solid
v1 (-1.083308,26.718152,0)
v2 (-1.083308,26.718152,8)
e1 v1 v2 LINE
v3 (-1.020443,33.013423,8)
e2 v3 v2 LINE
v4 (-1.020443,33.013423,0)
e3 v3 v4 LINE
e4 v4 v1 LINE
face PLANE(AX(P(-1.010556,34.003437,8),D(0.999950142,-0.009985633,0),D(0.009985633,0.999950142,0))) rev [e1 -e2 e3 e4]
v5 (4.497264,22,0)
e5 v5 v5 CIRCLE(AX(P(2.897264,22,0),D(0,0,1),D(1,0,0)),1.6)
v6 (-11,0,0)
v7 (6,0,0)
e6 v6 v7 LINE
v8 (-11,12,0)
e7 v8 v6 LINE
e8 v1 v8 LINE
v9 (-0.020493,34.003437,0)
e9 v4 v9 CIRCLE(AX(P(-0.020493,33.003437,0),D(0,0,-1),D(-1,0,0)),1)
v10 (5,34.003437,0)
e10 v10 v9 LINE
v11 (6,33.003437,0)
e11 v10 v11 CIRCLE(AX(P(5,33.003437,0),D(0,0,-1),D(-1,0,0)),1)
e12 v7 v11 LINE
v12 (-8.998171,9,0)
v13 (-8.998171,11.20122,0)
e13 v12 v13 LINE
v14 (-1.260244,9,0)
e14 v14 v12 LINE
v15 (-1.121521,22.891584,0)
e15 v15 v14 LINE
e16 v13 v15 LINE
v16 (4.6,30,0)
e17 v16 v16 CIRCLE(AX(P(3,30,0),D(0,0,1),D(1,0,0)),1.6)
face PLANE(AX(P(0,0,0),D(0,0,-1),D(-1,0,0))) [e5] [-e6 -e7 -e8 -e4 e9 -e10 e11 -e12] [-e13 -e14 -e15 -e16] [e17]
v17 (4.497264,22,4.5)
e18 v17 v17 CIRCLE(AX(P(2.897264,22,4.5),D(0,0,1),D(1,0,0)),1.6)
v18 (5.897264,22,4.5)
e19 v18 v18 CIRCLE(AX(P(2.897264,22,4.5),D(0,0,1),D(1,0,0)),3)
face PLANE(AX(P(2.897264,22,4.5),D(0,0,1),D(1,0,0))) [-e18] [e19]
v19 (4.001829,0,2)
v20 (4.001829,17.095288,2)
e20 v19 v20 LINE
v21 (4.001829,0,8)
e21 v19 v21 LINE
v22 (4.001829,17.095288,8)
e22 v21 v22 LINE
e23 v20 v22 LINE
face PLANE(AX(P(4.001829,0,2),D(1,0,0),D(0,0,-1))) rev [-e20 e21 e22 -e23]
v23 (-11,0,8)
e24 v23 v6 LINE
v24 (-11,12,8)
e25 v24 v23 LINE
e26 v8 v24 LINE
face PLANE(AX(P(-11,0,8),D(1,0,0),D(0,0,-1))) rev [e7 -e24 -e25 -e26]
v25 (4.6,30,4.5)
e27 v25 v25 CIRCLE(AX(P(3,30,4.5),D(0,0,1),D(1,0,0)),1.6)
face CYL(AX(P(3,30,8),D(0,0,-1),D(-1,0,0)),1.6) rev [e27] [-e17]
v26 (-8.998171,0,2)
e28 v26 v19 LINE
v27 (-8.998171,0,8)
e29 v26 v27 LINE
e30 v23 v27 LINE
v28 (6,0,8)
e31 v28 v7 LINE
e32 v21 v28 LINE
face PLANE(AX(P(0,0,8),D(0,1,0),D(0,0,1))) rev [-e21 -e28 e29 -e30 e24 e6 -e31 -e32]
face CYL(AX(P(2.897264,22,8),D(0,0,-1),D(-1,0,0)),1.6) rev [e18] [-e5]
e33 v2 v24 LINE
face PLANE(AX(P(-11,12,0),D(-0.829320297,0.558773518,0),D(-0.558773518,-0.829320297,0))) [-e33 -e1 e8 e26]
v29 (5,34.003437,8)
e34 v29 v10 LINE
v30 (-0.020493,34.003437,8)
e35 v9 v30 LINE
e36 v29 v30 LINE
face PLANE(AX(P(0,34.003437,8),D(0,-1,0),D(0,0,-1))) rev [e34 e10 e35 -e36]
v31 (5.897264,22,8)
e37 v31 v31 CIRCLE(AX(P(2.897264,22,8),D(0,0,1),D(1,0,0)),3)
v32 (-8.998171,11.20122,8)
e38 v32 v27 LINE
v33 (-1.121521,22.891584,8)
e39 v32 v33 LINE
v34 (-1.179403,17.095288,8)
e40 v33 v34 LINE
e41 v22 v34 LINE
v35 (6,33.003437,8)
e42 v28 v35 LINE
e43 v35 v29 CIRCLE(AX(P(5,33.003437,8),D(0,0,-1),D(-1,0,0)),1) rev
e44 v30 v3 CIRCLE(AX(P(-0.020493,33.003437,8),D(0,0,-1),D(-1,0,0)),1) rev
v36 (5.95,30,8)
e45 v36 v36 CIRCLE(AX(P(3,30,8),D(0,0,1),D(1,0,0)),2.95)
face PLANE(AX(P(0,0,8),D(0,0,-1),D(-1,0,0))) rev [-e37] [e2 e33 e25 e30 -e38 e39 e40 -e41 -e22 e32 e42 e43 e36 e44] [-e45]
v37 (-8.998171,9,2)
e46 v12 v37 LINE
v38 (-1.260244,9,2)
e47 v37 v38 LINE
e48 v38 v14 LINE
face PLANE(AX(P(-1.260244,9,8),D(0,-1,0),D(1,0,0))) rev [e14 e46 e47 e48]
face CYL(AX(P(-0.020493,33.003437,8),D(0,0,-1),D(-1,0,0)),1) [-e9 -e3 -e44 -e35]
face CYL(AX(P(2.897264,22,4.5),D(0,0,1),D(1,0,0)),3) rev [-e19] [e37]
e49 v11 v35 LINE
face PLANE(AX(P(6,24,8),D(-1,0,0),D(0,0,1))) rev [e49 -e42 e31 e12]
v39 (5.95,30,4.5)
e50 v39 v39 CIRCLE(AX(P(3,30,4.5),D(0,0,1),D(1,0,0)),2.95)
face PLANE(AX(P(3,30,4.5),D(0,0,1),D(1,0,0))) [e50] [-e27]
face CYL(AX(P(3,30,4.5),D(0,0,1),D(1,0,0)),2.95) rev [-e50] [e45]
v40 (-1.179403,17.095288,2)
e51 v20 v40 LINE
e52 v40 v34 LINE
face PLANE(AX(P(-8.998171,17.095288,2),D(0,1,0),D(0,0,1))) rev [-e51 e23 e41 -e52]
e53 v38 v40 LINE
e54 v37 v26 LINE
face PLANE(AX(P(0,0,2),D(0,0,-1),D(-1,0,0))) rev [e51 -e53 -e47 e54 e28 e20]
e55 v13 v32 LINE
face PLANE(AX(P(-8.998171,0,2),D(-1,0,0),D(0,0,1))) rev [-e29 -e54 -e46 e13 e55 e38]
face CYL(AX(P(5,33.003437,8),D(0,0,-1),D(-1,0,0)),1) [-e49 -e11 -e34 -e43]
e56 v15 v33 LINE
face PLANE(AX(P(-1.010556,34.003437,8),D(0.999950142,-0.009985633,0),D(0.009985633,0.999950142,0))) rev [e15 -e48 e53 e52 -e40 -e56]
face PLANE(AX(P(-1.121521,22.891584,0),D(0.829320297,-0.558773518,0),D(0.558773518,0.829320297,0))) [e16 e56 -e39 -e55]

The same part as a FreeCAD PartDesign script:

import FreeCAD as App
import Part
import Sketcher
from FreeCAD import Vector


def edges_at(feature, points):
    """Names of the edges that pass closest to the given points."""
    edges = feature.Shape.Edges
    near = lambda p: min(range(len(edges)), key=lambda i: edges[i].distToShape(Part.Vertex(*p))[0])
    return sorted({f"Edge{near(p) + 1}" for p in points})

doc = App.newDocument("Part")
body = doc.addObject("PartDesign::Body", "Body")

# Sketch on XY plane
sketch1 = doc.addObject("Sketcher::SketchObject", "Sketch")
body.addObject(sketch1)
sketch1.AttachmentSupport = (doc.XY_Plane, [""])
sketch1.MapMode = "FlatFace"
sketch1.addGeometry(Part.LineSegment(Vector(6, 0, 0), Vector(6, 34, 0)), False)
sketch1.addGeometry(Part.LineSegment(Vector(6, 34, 0), Vector(-1, 34, 0)), False)
sketch1.addGeometry(Part.LineSegment(Vector(-1, 34, 0), Vector(-1.3, 9, 0)), False)
sketch1.addGeometry(Part.LineSegment(Vector(-1.3, 9, 0), Vector(-11, 9, 0)), False)
sketch1.addGeometry(Part.LineSegment(Vector(-11, 9, 0), Vector(-11, 0, 0)), False)
sketch1.addGeometry(Part.LineSegment(Vector(-11, 0, 0), Vector(6, 0, 0)), False)
sketch1.addGeometry(Part.Circle(Vector(2.9, 22, 0), Vector(0, 0, 1), 1.6), False)
sketch1.addGeometry(Part.Circle(Vector(3, 30, 0), Vector(0, 0, 1), 1.6), False)
sketch1.addConstraint(Sketcher.Constraint("Coincident", 0, 2, 1, 1))
sketch1.addConstraint(Sketcher.Constraint("Coincident", 1, 2, 2, 1))
sketch1.addConstraint(Sketcher.Constraint("Coincident", 2, 2, 3, 1))
sketch1.addConstraint(Sketcher.Constraint("Coincident", 3, 2, 4, 1))
sketch1.addConstraint(Sketcher.Constraint("Coincident", 4, 2, 5, 1))
sketch1.addConstraint(Sketcher.Constraint("Coincident", 5, 2, 0, 1))
sketch1.addConstraint(Sketcher.Constraint("Vertical", 0))
sketch1.addConstraint(Sketcher.Constraint("Horizontal", 1))
sketch1.addConstraint(Sketcher.Constraint("Horizontal", 3))
sketch1.addConstraint(Sketcher.Constraint("Vertical", 4))
sketch1.addConstraint(Sketcher.Constraint("Horizontal", 5))
sketch1.addConstraint(Sketcher.Constraint("Equal", 6, 7))
sketch1.addConstraint(Sketcher.Constraint("PointOnObject", 4, 2, -1))
sketch1.addConstraint(Sketcher.Constraint("Diameter", 6, 3.2))
sketch1.addConstraint(Sketcher.Constraint("DistanceX", 5, 1, 5, 2, 17.0))
sketch1.addConstraint(Sketcher.Constraint("DistanceY", 4, 2, 4, 1, 9.0))
sketch1.addConstraint(Sketcher.Constraint("DistanceY", -1, 1, 6, 3, 22.0))
sketch1.addConstraint(Sketcher.Constraint("DistanceX", -1, 1, 7, 3, 3.0))
sketch1.addConstraint(Sketcher.Constraint("DistanceY", -1, 1, 7, 3, 30.0))
sketch1.addConstraint(Sketcher.Constraint("DistanceX", -1, 1, 0, 2, 6.0))
sketch1.addConstraint(Sketcher.Constraint("DistanceX", 1, 2, 1, 1, 7.010556))
sketch1.addConstraint(Sketcher.Constraint("DistanceX", 3, 2, 3, 1, 9.739756))
sketch1.addConstraint(Sketcher.Constraint("DistanceY", 0, 1, 0, 2, 34.003437))
sketch1.addConstraint(Sketcher.Constraint("DistanceX", 1, 2, 6, 3, 3.90782))
pad1 = doc.addObject("PartDesign::Pad", "Pad")
body.addObject(pad1)
pad1.Profile = sketch1
pad1.Length = 8

# Sketch on XY plane
sketch2 = doc.addObject("Sketcher::SketchObject", "Sketch001")
body.addObject(sketch2)
sketch2.AttachmentSupport = (doc.XY_Plane, [""])
sketch2.MapMode = "FlatFace"
sketch2.AttachmentOffset = App.Placement(Vector(0, 0, 8), App.Rotation())
sketch2.addGeometry(Part.LineSegment(Vector(-9, 17, 0), Vector(-9, 0, 0)), False)
sketch2.addGeometry(Part.LineSegment(Vector(-9, 0, 0), Vector(4, 0, 0)), False)
sketch2.addGeometry(Part.LineSegment(Vector(4, 0, 0), Vector(4, 17, 0)), False)
sketch2.addGeometry(Part.LineSegment(Vector(4, 17, 0), Vector(-9, 17, 0)), False)
sketch2.addConstraint(Sketcher.Constraint("Coincident", 0, 2, 1, 1))
sketch2.addConstraint(Sketcher.Constraint("Coincident", 1, 2, 2, 1))
sketch2.addConstraint(Sketcher.Constraint("Coincident", 2, 2, 3, 1))
sketch2.addConstraint(Sketcher.Constraint("Coincident", 3, 2, 0, 1))
sketch2.addConstraint(Sketcher.Constraint("Vertical", 0))
sketch2.addConstraint(Sketcher.Constraint("Horizontal", 1))
sketch2.addConstraint(Sketcher.Constraint("Vertical", 2))
sketch2.addConstraint(Sketcher.Constraint("Horizontal", 3))
sketch2.addConstraint(Sketcher.Constraint("PointOnObject", 0, 2, -1))
sketch2.addConstraint(Sketcher.Constraint("DistanceX", 1, 1, 1, 2, 13.0))
sketch2.addConstraint(Sketcher.Constraint("DistanceY", 0, 2, 0, 1, 17.095288))
sketch2.addConstraint(Sketcher.Constraint("DistanceX", 0, 2, -1, 1, 8.998171))
pocket1 = doc.addObject("PartDesign::Pocket", "Pocket")
body.addObject(pocket1)
pocket1.Profile = sketch2
pocket1.Length = 6

# Sketch on XY plane
sketch3 = doc.addObject("Sketcher::SketchObject", "Sketch002")
body.addObject(sketch3)
sketch3.AttachmentSupport = (doc.XY_Plane, [""])
sketch3.MapMode = "FlatFace"
sketch3.AttachmentOffset = App.Placement(Vector(0, 0, 8), App.Rotation())
sketch3.addGeometry(Part.LineSegment(Vector(-1.1, 26.7, 0), Vector(-11, 12, 0)), False)
sketch3.addGeometry(Part.LineSegment(Vector(-11, 12, 0), Vector(-11, 9, 0)), False)
sketch3.addGeometry(Part.LineSegment(Vector(-11, 9, 0), Vector(-9, 9, 0)), False)
sketch3.addGeometry(Part.LineSegment(Vector(-9, 9, 0), Vector(-9, 11.2, 0)), False)
sketch3.addGeometry(Part.LineSegment(Vector(-9, 11.2, 0), Vector(-1.1, 22.9, 0)), False)
sketch3.addGeometry(Part.LineSegment(Vector(-1.1, 22.9, 0), Vector(-1.1, 26.7, 0)), False)
sketch3.addConstraint(Sketcher.Constraint("Coincident", 0, 2, 1, 1))
sketch3.addConstraint(Sketcher.Constraint("Coincident", 1, 2, 2, 1))
sketch3.addConstraint(Sketcher.Constraint("Coincident", 2, 2, 3, 1))
sketch3.addConstraint(Sketcher.Constraint("Coincident", 3, 2, 4, 1))
sketch3.addConstraint(Sketcher.Constraint("Coincident", 4, 2, 5, 1))
sketch3.addConstraint(Sketcher.Constraint("Coincident", 5, 2, 0, 1))
sketch3.addConstraint(Sketcher.Constraint("Vertical", 1))
sketch3.addConstraint(Sketcher.Constraint("Horizontal", 2))
sketch3.addConstraint(Sketcher.Constraint("Vertical", 3))
sketch3.addConstraint(Sketcher.Constraint("Parallel", 0, 4))
sketch3.addConstraint(Sketcher.Constraint("DistanceY", 1, 2, 1, 1, 3.0))
sketch3.addConstraint(Sketcher.Constraint("DistanceX", 0, 2, -1, 1, 11.0))
sketch3.addConstraint(Sketcher.Constraint("DistanceY", -1, 1, 0, 2, 12.0))
sketch3.addConstraint(Sketcher.Constraint("DistanceX", 2, 1, 2, 2, 2.001829))
sketch3.addConstraint(Sketcher.Constraint("DistanceY", 3, 1, 3, 2, 2.20122))
sketch3.addConstraint(Sketcher.Constraint("Distance", 4, 14.096321))
sketch3.addConstraint(Sketcher.Constraint("Distance", 5, 3.826759))
sketch3.addConstraint(Sketcher.Constraint("DistanceX", 4, 2, -1, 1, 1.121521))
pad2 = doc.addObject("PartDesign::Pad", "Pad001")
body.addObject(pad2)
pad2.Profile = sketch3
pad2.Length = 8
pad2.Reversed = True

# Sketch on XY plane
sketch4 = doc.addObject("Sketcher::SketchObject", "Sketch003")
body.addObject(sketch4)
sketch4.AttachmentSupport = (doc.XY_Plane, [""])
sketch4.MapMode = "FlatFace"
sketch4.AttachmentOffset = App.Placement(Vector(0, 0, 8), App.Rotation())
sketch4.addGeometry(Part.Circle(Vector(2.9, 22, 0), Vector(0, 0, 1), 3), False)
sketch4.addGeometry(Part.Circle(Vector(3, 30, 0), Vector(0, 0, 1), 3), False)
sketch4.addConstraint(Sketcher.Constraint("Diameter", 0, 6.0))
sketch4.addConstraint(Sketcher.Constraint("Diameter", 1, 5.9))
sketch4.addConstraint(Sketcher.Constraint("DistanceY", -1, 1, 0, 3, 22.0))
sketch4.addConstraint(Sketcher.Constraint("DistanceX", -1, 1, 1, 3, 3.0))
sketch4.addConstraint(Sketcher.Constraint("DistanceY", -1, 1, 1, 3, 30.0))
sketch4.addConstraint(Sketcher.Constraint("DistanceX", -1, 1, 0, 3, 2.897264))
pocket2 = doc.addObject("PartDesign::Pocket", "Pocket001")
body.addObject(pocket2)
pocket2.Profile = sketch4
pocket2.Length = 3.5
doc.recompute()

fillet = doc.addObject("PartDesign::Fillet", "Fillet")
body.addObject(fillet)
fillet.Base = (pocket2, edges_at(pocket2, [(-1.011, 34.003, 4), (6, 34.003, 4)]))
fillet.Radius = 1

doc.recompute()
